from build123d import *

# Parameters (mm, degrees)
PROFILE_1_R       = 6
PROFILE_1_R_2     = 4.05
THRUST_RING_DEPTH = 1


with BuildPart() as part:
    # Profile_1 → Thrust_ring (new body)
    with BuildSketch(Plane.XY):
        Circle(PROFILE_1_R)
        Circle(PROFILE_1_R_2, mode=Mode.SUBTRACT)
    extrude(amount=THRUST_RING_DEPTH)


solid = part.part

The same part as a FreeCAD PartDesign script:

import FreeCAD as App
import Part
import Sketcher

doc = App.newDocument("Part")
params = doc.addObject("Spreadsheet::Sheet", "Params")
for row, (alias, value) in enumerate([
    ("sketch1_diameter", "12 mm"),
    ("sketch1_diameter2", "8.1 mm"),
    ("pad1_length", "1 mm"),
], start=1):
    params.set(f"A{row}", alias)
    params.set(f"B{row}", "=" + value)
    params.setAlias(f"B{row}", alias)

body = doc.addObject("PartDesign::Body", "Body")

# Sketch on XY plane
sketch1 = body.newObject("Sketcher::SketchObject", "Sketch")
sketch1.AttachmentSupport = (doc.getObject("XY_Plane"), [""])
sketch1.MapMode = "FlatFace"
sketch1.addGeometry([
    Part.Circle(App.Vector(0, 0, 0), App.Vector(0, 0, 1), 6),
    Part.Circle(App.Vector(0, 0, 0), App.Vector(0, 0, 1), 4.05),
], False)
sketch1.addConstraint([
    Sketcher.Constraint("Coincident", 0, 3, -1, 1),
    Sketcher.Constraint("Coincident", 1, 3, -1, 1),
    Sketcher.Constraint("Diameter", 0, 12.0),
    Sketcher.Constraint("Diameter", 1, 8.1),
])
sketch1.setExpression("Constraints[2]", "Params.sketch1_diameter")
sketch1.setExpression("Constraints[3]", "Params.sketch1_diameter2")
pad1 = body.newObject("PartDesign::Pad", "Pad")
pad1.Profile = sketch1
pad1.setExpression("Length", "Params.pad1_length")

doc.recompute()
